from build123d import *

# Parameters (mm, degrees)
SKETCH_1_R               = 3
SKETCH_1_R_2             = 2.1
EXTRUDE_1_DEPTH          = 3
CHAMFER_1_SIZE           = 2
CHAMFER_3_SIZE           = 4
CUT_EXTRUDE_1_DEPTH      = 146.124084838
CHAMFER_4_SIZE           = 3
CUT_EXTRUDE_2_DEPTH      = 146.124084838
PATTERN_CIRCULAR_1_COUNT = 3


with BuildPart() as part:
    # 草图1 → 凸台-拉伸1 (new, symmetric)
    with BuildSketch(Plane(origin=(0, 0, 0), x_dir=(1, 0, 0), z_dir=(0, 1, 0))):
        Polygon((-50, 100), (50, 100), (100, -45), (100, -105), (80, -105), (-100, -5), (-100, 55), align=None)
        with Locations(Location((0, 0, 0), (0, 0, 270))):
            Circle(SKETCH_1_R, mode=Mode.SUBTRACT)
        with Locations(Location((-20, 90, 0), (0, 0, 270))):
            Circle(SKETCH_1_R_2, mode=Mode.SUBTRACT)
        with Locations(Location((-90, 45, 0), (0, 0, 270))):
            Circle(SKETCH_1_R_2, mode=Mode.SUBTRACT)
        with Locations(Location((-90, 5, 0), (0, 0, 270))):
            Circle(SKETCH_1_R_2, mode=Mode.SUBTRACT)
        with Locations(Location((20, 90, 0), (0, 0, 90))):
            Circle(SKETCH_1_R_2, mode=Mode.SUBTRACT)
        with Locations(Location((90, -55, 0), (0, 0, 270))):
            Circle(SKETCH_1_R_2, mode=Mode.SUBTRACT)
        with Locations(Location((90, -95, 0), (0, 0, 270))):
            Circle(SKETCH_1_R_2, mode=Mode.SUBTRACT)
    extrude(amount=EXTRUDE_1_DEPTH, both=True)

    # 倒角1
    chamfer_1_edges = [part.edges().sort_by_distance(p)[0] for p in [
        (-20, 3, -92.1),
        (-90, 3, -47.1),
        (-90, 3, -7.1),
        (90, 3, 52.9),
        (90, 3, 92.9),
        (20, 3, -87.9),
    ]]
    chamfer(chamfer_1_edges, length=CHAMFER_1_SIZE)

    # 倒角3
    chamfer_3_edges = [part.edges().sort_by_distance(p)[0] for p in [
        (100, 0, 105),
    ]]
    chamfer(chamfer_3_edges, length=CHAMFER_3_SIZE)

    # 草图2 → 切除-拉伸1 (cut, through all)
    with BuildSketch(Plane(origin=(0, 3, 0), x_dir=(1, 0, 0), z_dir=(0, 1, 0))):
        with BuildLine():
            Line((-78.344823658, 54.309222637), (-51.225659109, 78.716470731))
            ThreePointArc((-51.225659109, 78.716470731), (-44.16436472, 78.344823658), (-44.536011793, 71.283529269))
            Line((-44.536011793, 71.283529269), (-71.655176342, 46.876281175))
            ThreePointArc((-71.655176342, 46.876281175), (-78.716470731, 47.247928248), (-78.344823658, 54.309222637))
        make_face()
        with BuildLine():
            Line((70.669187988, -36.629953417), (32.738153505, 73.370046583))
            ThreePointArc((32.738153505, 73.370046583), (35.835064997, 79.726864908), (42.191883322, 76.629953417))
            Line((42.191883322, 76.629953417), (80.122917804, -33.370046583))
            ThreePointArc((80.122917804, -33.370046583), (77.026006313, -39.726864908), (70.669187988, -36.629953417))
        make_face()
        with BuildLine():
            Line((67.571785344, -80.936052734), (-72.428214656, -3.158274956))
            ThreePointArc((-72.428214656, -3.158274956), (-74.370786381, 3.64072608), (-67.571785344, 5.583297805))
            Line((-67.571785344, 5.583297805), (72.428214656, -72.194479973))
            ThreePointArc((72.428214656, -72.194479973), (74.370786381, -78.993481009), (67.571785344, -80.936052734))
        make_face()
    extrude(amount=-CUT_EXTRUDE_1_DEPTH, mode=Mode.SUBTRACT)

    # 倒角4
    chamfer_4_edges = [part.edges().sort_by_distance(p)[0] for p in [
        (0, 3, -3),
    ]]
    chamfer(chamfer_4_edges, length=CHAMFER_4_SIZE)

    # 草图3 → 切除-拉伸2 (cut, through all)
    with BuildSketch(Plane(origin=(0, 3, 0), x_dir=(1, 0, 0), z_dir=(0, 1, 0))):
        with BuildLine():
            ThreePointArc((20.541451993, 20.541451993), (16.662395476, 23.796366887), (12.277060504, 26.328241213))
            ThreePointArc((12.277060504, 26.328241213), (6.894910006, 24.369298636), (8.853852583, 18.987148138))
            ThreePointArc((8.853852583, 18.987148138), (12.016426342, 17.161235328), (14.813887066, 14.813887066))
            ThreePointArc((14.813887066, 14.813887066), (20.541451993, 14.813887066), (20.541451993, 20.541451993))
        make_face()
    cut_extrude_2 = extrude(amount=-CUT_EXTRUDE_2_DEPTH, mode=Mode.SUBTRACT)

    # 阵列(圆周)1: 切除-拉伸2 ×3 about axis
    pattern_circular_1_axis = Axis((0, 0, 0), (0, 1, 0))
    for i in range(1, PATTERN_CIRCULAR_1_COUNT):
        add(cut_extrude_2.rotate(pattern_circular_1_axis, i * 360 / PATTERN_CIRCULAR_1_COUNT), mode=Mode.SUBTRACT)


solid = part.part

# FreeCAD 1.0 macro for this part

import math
import FreeCAD as App
import Part
import Sketcher
Q = App.Units.Quantity


def edges_at(feature, points):
    """Names of the edges that pass closest to the given points."""
    edges = feature.Shape.Edges
    near = lambda p: min(range(len(edges)), key=lambda i: edges[i].distToShape(Part.Vertex(*p))[0])
    return sorted({f"Edge{near(p) + 1}" for p in points})

doc = App.newDocument("Part")
body = doc.addObject("PartDesign::Body", "Body")

# Sketch on XZ plane
sketch1 = body.newObject("Sketcher::SketchObject", "Sketch")
sketch1.AttachmentSupport = (doc.getObject("XZ_Plane"), [""])
sketch1.MapMode = "FlatFace"
sketch1.addGeometry(Part.LineSegment(App.Vector(50, -100, 0), App.Vector(-50, -100, 0)), False)
sketch1.addGeometry(Part.LineSegment(App.Vector(-50, -100, 0), App.Vector(-100, -55, 0)), False)
sketch1.addGeometry(Part.LineSegment(App.Vector(-100, -55, 0), App.Vector(-100, 5, 0)), False)
sketch1.addGeometry(Part.LineSegment(App.Vector(-100, 5, 0), App.Vector(80, 105, 0)), False)
sketch1.addGeometry(Part.LineSegment(App.Vector(80, 105, 0), App.Vector(100, 105, 0)), False)
sketch1.addGeometry(Part.LineSegment(App.Vector(100, 105, 0), App.Vector(100, 45, 0)), False)
sketch1.addGeometry(Part.LineSegment(App.Vector(100, 45, 0), App.Vector(50, -100, 0)), False)
sketch1.addGeometry(Part.Circle(App.Vector(90, 95, 0), App.Vector(0, 0, 1), 2.1), False)
sketch1.addGeometry(Part.Circle(App.Vector(90, 55, 0), App.Vector(0, 0, 1), 2.1), False)
sketch1.addGeometry(Part.Circle(App.Vector(20, -90, 0), App.Vector(0, 0, 1), 2.1), False)
sketch1.addGeometry(Part.Circle(App.Vector(0, 0, 0), App.Vector(0, 0, 1), 3), False)
sketch1.addGeometry(Part.Circle(App.Vector(-90, -5, 0), App.Vector(0, 0, 1), 2.1), False)
sketch1.addGeometry(Part.Circle(App.Vector(-20, -90, 0), App.Vector(0, 0, 1), 2.1), False)
sketch1.addGeometry(Part.Circle(App.Vector(-90, -45, 0), App.Vector(0, 0, 1), 2.1), False)
sketch1.addConstraint(Sketcher.Constraint("Coincident", 0, 2, 1, 1))
sketch1.addConstraint(Sketcher.Constraint("Coincident", 1, 2, 2, 1))
sketch1.addConstraint(Sketcher.Constraint("Coincident", 2, 2, 3, 1))
sketch1.addConstraint(Sketcher.Constraint("Coincident", 3, 2, 4, 1))
sketch1.addConstraint(Sketcher.Constraint("Coincident", 4, 2, 5, 1))
sketch1.addConstraint(Sketcher.Constraint("Coincident", 5, 2, 6, 1))
sketch1.addConstraint(Sketcher.Constraint("Coincident", 6, 2, 0, 1))
sketch1.addConstraint(Sketcher.Constraint("Horizontal", 0))
sketch1.addConstraint(Sketcher.Constraint("Vertical", 2))
sketch1.addConstraint(Sketcher.Constraint("Horizontal", 4))
sketch1.addConstraint(Sketcher.Constraint("Vertical", 5))
sketch1.addConstraint(Sketcher.Constraint("Coincident", 10, 3, -1, 1))
sketch1.addConstraint(Sketcher.Constraint("Equal", 7, 8))
sketch1.addConstraint(Sketcher.Constraint("Equal", 8, 9))
sketch1.addConstraint(Sketcher.Constraint("Equal", 9, 11))
sketch1.addConstraint(Sketcher.Constraint("Equal", 11, 12))
sketch1.addConstraint(Sketcher.Constraint("Equal", 12, 13))
sketch1.addConstraint(Sketcher.Constraint("Symmetric", 9, 3, 12, 3, -2))
sketch1.addConstraint(Sketcher.Constraint("Vertical", 7, 3, 8, 3))
sketch1.addConstraint(Sketcher.Constraint("Vertical", 11, 3, 13, 3))
sketch1.addConstraint(Sketcher.Constraint("Equal", 2, 5))
sketch1.addConstraint(Sketcher.Constraint("Diameter", 10, Q("6 mm")))
sketch1.addConstraint(Sketcher.Constraint("Diameter", 7, Q("4.2 mm")))
sketch1.addConstraint(Sketcher.Constraint("DistanceX", 0, 2, 0, 1, Q("100 mm")))
sketch1.addConstraint(Sketcher.Constraint("DistanceX", 4, 1, 4, 2, Q("20 mm")))
sketch1.addConstraint(Sketcher.Constraint("DistanceY", 2, 1, 2, 2, Q("60 mm")))
sketch1.addConstraint(Sketcher.Constraint("DistanceX", -1, 1, 7, 3, Q("90 mm")))
sketch1.addConstraint(Sketcher.Constraint("DistanceY", -1, 1, 7, 3, Q("95 mm")))
sketch1.addConstraint(Sketcher.Constraint("DistanceY", -1, 1, 8, 3, Q("55 mm")))
sketch1.addConstraint(Sketcher.Constraint("DistanceX", -1, 1, 9, 3, Q("20 mm")))
sketch1.addConstraint(Sketcher.Constraint("DistanceY", 9, 3, -1, 1, Q("90 mm")))
sketch1.addConstraint(Sketcher.Constraint("DistanceX", 11, 3, -1, 1, Q("90 mm")))
sketch1.addConstraint(Sketcher.Constraint("DistanceY", 11, 3, -1, 1, Q("5 mm")))
sketch1.addConstraint(Sketcher.Constraint("DistanceY", 13, 3, -1, 1, Q("45 mm")))
sketch1.addConstraint(Sketcher.Constraint("DistanceX", 0, 2, -1, 1, Q("50 mm")))
sketch1.addConstraint(Sketcher.Constraint("DistanceY", 0, 2, -1, 1, Q("100 mm")))
sketch1.addConstraint(Sketcher.Constraint("DistanceX", 1, 2, -1, 1, Q("100 mm")))
sketch1.addConstraint(Sketcher.Constraint("DistanceY", 1, 2, -1, 1, Q("55 mm")))
sketch1.addConstraint(Sketcher.Constraint("DistanceX", -1, 1, 3, 2, Q("80 mm")))
sketch1.addConstraint(Sketcher.Constraint("DistanceY", -1, 1, 3, 2, Q("105 mm")))
pad1 = body.newObject("PartDesign::Pad", "Pad")
pad1.Profile = sketch1
pad1.Length = 6
pad1.Midplane = True
doc.recompute()

chamfer = body.newObject("PartDesign::Chamfer", "Chamfer")
chamfer.Base = (pad1, edges_at(pad1, [
    (-20, 3, -92.1),
    (-90, 3, -47.1),
    (-90, 3, -7.1),
    (90, 3, 52.9),
    (90, 3, 92.9),
    (20, 3, -87.9),
]))
chamfer.Size = 2
doc.recompute()

chamfer2 = body.newObject("PartDesign::Chamfer", "Chamfer001")
chamfer2.Base = (chamfer, edges_at(chamfer, [(100, 0, 105)]))
chamfer2.Size = 4

# Sketch on XZ plane
sketch2 = body.newObject("Sketcher::SketchObject", "Sketch001")
sketch2.AttachmentSupport = (doc.getObject("XZ_Plane"), [""])
sketch2.MapMode = "FlatFace"
sketch2.AttachmentOffset = App.Placement(App.Vector(0, 0, -3), App.Rotation())
sketch2.addGeometry(Part.LineSegment(App.Vector(-51.225659, -78.716471, 0), App.Vector(-78.344824, -54.309223, 0)), False)
sketch2.addGeometry(Part.ArcOfCircle(Part.Circle(App.Vector(-75, -50.592752, 0), App.Vector(0, 0, 1), 5), math.radians(48.012788), math.radians(228.012788)), False)
sketch2.addGeometry(Part.LineSegment(App.Vector(-71.655176, -46.876281, 0), App.Vector(-44.536012, -71.283529, 0)), False)
sketch2.addGeometry(Part.ArcOfCircle(Part.Circle(App.Vector(-47.880835, -75, 0), App.Vector(0, 0, 1), 5), math.radians(-131.987212), math.radians(48.012788)), False)
sketch2.addGeometry(Part.LineSegment(App.Vector(32.738154, -73.370047, 0), App.Vector(70.669188, 36.629953, 0)), False)
sketch2.addGeometry(Part.ArcOfCircle(Part.Circle(App.Vector(75.396053, 35, 0), App.Vector(0, 0, 1), 5), math.radians(-19.025606), math.radians(160.974394)), False)
sketch2.addGeometry(Part.LineSegment(App.Vector(80.122918, 33.370047, 0), App.Vector(42.191883, -76.629953, 0)), False)
sketch2.addGeometry(Part.ArcOfCircle(Part.Circle(App.Vector(37.465018, -75, 0), App.Vector(0, 0, 1), 5), math.radians(160.974394), math.radians(340.974394)), False)
sketch2.addGeometry(Part.LineSegment(App.Vector(-72.428215, 3.158275, 0), App.Vector(67.571785, 80.936053, 0)), False)
sketch2.addGeometry(Part.ArcOfCircle(Part.Circle(App.Vector(70, 76.565266, 0), App.Vector(0, 0, 1), 5), math.radians(-60.945396), math.radians(119.054604)), False)
sketch2.addGeometry(Part.LineSegment(App.Vector(72.428215, 72.19448, 0), App.Vector(-67.571785, -5.583298, 0)), False)
sketch2.addGeometry(Part.ArcOfCircle(Part.Circle(App.Vector(-70, -1.212511, 0), App.Vector(0, 0, 1), 5), math.radians(119.054604), math.radians(299.054604)), False)
sketch2.addConstraint(Sketcher.Constraint("Tangent", 0, 2, 1, 2))
sketch2.addConstraint(Sketcher.Constraint("Tangent", 1, 1, 2, 1))
sketch2.addConstraint(Sketcher.Constraint("Tangent", 2, 2, 3, 2))
sketch2.addConstraint(Sketcher.Constraint("Tangent", 3, 1, 0, 1))
sketch2.addConstraint(Sketcher.Constraint("Tangent", 4, 2, 5, 2))
sketch2.addConstraint(Sketcher.Constraint("Tangent", 5, 1, 6, 1))
sketch2.addConstraint(Sketcher.Constraint("Tangent", 6, 2, 7, 2))
sketch2.addConstraint(Sketcher.Constraint("Tangent", 7, 1, 4, 1))
sketch2.addConstraint(Sketcher.Constraint("Tangent", 8, 2, 9, 2))
sketch2.addConstraint(Sketcher.Constraint("Tangent", 9, 1, 10, 1))
sketch2.addConstraint(Sketcher.Constraint("Tangent", 10, 2, 11, 2))
sketch2.addConstraint(Sketcher.Constraint("Tangent", 11, 1, 8, 1))
sketch2.addConstraint(Sketcher.Constraint("Equal", 1, 3))
sketch2.addConstraint(Sketcher.Constraint("Equal", 3, 5))
sketch2.addConstraint(Sketcher.Constraint("Equal", 5, 7))
sketch2.addConstraint(Sketcher.Constraint("Equal", 7, 9))
sketch2.addConstraint(Sketcher.Constraint("Equal", 9, 11))
sketch2.addConstraint(Sketcher.Constraint("Horizontal", 3, 3, 7, 3))
sketch2.addConstraint(Sketcher.Constraint("Radius", 1, Q("5 mm")))
sketch2.addConstraint(Sketcher.Constraint("DistanceX", 1, 3, -1, 1, Q("75 mm")))
sketch2.addConstraint(Sketcher.Constraint("DistanceY", 3, 3, -1, 1, Q("75 mm")))
sketch2.addConstraint(Sketcher.Constraint("DistanceY", -1, 1, 5, 3, Q("35 mm")))
sketch2.addConstraint(Sketcher.Constraint("DistanceX", -1, 1, 9, 3, Q("70 mm")))
sketch2.addConstraint(Sketcher.Constraint("DistanceX", 11, 3, -1, 1, Q("70 mm")))
sketch2.addConstraint(Sketcher.Constraint("DistanceX", 2, 2, 4, 2, Q("115.2052 mm")))
sketch2.addConstraint(Sketcher.Constraint("DistanceX", 7, 3, 5, 1, Q("42.657899 mm")))
sketch2.addConstraint(Sketcher.Constraint("DistanceY", 4, 2, 8, 2, Q("44.306099 mm")))
sketch2.addConstraint(Sketcher.Constraint("DistanceY", 1, 3, -1, 1, Q("50.592752 mm")))
sketch2.addConstraint(Sketcher.Constraint("DistanceX", -1, 1, 7, 3, Q("37.465018 mm")))
sketch2.addConstraint(Sketcher.Constraint("DistanceY", 11, 3, -1, 1, Q("1.212511 mm")))
pocket1 = body.newObject("PartDesign::Pocket", "Pocket")
pocket1.Profile = sketch2
pocket1.Type = "ThroughAll"
pocket1.Reversed = True
doc.recompute()

chamfer3 = body.newObject("PartDesign::Chamfer", "Chamfer002")
chamfer3.Base = (pocket1, edges_at(pocket1, [(0, 3, -3)]))
chamfer3.Size = 3

# Sketch on XZ plane
sketch3 = body.newObject("Sketcher::SketchObject", "Sketch002")
sketch3.AttachmentSupport = (doc.getObject("XZ_Plane"), [""])
sketch3.MapMode = "FlatFace"
sketch3.AttachmentOffset = App.Placement(App.Vector(0, 0, -3), App.Rotation())
sketch3.addGeometry(Part.ArcOfCircle(Part.Circle(App.Vector(0, 0, 0), App.Vector(0, 0, 1), 29.05), math.radians(-65), math.radians(-45)), False)
sketch3.addGeometry(Part.ArcOfCircle(Part.Circle(App.Vector(10.565457, -22.657695, 0), App.Vector(0, 0, 1), 4.05), math.radians(115), math.radians(295)), False)
sketch3.addGeometry(Part.ArcOfCircle(Part.Circle(App.Vector(0, 0, 0), App.Vector(0, 0, 1), 20.95), math.radians(-65), math.radians(-45)), False)
sketch3.addGeometry(Part.ArcOfCircle(Part.Circle(App.Vector(17.67767, -17.67767, 0), App.Vector(0, 0, 1), 4.05), math.radians(-45), math.radians(135)), False)
sketch3.addConstraint(Sketcher.Constraint("Tangent", 0, 1, 1, 2))
sketch3.addConstraint(Sketcher.Constraint("Tangent", 1, 1, 2, 1))
sketch3.addConstraint(Sketcher.Constraint("Tangent", 2, 2, 3, 2))
sketch3.addConstraint(Sketcher.Constraint("Tangent", 3, 1, 0, 2))
sketch3.addConstraint(Sketcher.Constraint("Coincident", 0, 3, -1, 1))
sketch3.addConstraint(Sketcher.Constraint("Coincident", 2, 3, -1, 1))
sketch3.addConstraint(Sketcher.Constraint("Radius", 0, Q("29.05 mm")))
sketch3.addConstraint(Sketcher.Constraint("Radius", 1, Q("4.05 mm")))
sketch3.addConstraint(Sketcher.Constraint("DistanceX", 1, 1, 3, 1, Q("11.687599 mm")))
sketch3.addConstraint(Sketcher.Constraint("DistanceX", -1, 1, 3, 3, Q("17.67767 mm")))
pocket2 = body.newObject("PartDesign::Pocket", "Pocket001")
pocket2.Profile = sketch3
pocket2.Type = "ThroughAll"
pocket2.Reversed = True
doc.recompute()

polarpattern = body.newObject("PartDesign::PolarPattern", "PolarPattern")
polarpattern.Originals = [pocket2]
polarpattern.Axis = (doc.getObject("Y_Axis"), [""])
polarpattern.Angle = 360
polarpattern.Occurrences = 3
body.Tip = polarpattern

doc.recompute()
